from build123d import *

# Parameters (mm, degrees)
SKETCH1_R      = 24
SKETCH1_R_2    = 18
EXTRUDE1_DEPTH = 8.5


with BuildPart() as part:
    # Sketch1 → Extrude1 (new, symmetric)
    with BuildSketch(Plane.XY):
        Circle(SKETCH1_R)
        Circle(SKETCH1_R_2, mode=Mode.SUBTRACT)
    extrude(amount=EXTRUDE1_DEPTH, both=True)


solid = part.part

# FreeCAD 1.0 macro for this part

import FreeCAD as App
import Part
import Sketcher
from FreeCAD import Vector
Q = App.Units.Quantity

doc = App.newDocument("Part")
params = doc.addObject("Spreadsheet::Sheet", "Params")
for row, (alias, value) in enumerate([
    ("sketch1_diameter", "48 mm"),
    ("sketch1_diameter2", "36 mm"),
    ("pad1_length", "17 mm"),
], start=1):
    params.set(f"A{row}", alias)
    params.set(f"B{row}", "=" + value)
    params.setAlias(f"B{row}", alias)

body = doc.addObject("PartDesign::Body", "Body")

# Sketch on XY plane
sketch1 = body.newObject("Sketcher::SketchObject", "Sketch")
sketch1.AttachmentSupport = (doc.getObject("XY_Plane"), [""])
sketch1.MapMode = "FlatFace"
sketch1.addGeometry([
    Part.Circle(Vector(0, 0, 0), Vector(0, 0, 1), 24),
    Part.Circle(Vector(0, 0, 0), Vector(0, 0, 1), 18),
], False)
sketch1.addConstraint([
    Sketcher.Constraint("Coincident", 0, 3, -1, 1),
    Sketcher.Constraint("Coincident", 1, 3, -1, 1),
    Sketcher.Constraint("Diameter", 0, Q("48 mm")),
    Sketcher.Constraint("Diameter", 1, Q("36 mm")),
])
sketch1.setExpression("Constraints[2]", "Params.sketch1_diameter")
sketch1.setExpression("Constraints[3]", "Params.sketch1_diameter2")
pad1 = body.newObject("PartDesign::Pad", "Pad")
pad1.Profile = sketch1
pad1.setExpression("Length", "Params.pad1_length")
pad1.Midplane = True

doc.recompute()
